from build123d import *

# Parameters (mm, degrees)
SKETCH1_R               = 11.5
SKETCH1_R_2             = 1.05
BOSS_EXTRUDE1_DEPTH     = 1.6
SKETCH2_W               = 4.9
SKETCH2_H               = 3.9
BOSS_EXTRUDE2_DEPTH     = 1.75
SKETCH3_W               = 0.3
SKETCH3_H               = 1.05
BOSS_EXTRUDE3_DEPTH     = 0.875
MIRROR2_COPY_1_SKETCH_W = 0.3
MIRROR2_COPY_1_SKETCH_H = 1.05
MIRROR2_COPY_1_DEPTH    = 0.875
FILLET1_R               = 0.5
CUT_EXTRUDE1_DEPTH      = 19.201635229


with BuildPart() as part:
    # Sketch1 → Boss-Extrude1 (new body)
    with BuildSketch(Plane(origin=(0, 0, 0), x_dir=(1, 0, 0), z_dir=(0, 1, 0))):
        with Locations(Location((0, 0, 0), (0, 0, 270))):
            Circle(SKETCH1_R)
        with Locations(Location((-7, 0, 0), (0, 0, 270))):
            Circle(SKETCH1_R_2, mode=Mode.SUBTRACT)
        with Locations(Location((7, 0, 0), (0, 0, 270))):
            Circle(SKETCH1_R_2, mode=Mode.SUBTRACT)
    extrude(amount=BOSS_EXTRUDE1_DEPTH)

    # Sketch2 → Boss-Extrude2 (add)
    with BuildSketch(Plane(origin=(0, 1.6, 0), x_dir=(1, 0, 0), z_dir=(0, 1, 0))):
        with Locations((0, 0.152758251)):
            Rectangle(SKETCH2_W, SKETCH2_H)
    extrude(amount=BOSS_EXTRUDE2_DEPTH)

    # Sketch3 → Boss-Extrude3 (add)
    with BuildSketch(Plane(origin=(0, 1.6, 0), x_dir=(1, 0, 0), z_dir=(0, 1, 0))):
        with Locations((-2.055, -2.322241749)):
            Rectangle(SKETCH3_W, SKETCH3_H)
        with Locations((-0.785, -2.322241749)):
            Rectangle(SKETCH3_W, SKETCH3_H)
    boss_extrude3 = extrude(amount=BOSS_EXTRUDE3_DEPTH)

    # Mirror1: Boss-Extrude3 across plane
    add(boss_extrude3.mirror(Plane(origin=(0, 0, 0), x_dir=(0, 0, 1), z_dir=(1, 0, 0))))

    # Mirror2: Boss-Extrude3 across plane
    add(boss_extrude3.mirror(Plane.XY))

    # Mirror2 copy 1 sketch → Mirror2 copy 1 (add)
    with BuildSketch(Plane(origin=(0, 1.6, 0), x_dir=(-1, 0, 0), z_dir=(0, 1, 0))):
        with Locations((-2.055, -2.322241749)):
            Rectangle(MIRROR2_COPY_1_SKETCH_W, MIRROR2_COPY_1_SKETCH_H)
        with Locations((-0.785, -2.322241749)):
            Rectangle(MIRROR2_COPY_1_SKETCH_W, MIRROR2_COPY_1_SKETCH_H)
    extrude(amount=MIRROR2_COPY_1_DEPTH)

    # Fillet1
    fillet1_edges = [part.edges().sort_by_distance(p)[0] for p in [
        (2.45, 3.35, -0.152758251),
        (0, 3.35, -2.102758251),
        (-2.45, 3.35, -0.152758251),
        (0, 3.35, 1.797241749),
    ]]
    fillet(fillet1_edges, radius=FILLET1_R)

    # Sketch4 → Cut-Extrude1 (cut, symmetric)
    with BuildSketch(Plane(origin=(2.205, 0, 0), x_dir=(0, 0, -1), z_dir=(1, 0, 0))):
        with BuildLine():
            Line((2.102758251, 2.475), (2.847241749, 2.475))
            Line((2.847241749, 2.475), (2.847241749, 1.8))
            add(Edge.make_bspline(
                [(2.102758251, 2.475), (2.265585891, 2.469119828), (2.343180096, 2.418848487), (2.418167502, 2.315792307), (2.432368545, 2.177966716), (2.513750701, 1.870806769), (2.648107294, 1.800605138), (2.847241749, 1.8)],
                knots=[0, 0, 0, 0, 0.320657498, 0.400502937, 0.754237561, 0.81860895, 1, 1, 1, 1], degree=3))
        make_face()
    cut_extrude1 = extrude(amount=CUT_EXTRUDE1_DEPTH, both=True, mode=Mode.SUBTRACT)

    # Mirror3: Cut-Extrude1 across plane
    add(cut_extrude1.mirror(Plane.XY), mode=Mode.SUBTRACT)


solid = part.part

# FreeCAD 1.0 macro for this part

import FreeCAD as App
import Part
import Sketcher

V = App.Vector
Q = App.Units.Quantity


def edges_at(feature, points):
    """Names of the edges that pass closest to the given points."""
    edges = feature.Shape.Edges
    near = lambda p: min(range(len(edges)), key=lambda i: edges[i].distToShape(Part.Vertex(*p))[0])
    return sorted({f"Edge{near(p) + 1}" for p in points})


def add_polygon(sketch, points):
    """Adds a closed chain of lines whose ends are joined by coincident constraints."""
    first, n = sketch.GeometryCount, len(points)
    for a, b in zip(points, points[1:] + points[:1]):
        sketch.addGeometry(Part.LineSegment(App.Vector(*a, 0), App.Vector(*b, 0)), False)
    for i in range(n):
        sketch.addConstraint(Sketcher.Constraint("Coincident", first + i, 2, first + (i + 1) % n, 1))

doc = App.newDocument("Part")
body = doc.addObject("PartDesign::Body", "Body")

# Sketch on XZ plane
sketch1 = body.newObject("Sketcher::SketchObject", "Sketch")
sketch1.AttachmentSupport = (doc.getObject("XZ_Plane"), [""])
sketch1.MapMode = "FlatFace"
sketch1.addGeometry([
    Part.Circle(V(0, 0, 0), V(0, 0, 1), 11.5),
    Part.Circle(V(-7, 0, 0), V(0, 0, 1), 1.1),
    Part.Circle(V(7, 0, 0), V(0, 0, 1), 1.1),
], False)
sketch1.addConstraint([
    Sketcher.Constraint("Coincident", 0, 3, -1, 1),
    Sketcher.Constraint("Equal", 1, 2),
    Sketcher.Constraint("Symmetric", 1, 3, 2, 3, -1, 1),
    Sketcher.Constraint("PointOnObject", 1, 3, -1),
    Sketcher.Constraint("Diameter", 0, Q("23 mm")),
    Sketcher.Constraint("Diameter", 1, Q("2.1 mm")),
    Sketcher.Constraint("DistanceX", 1, 3, -1, 1, Q("7 mm")),
])
pad1 = body.newObject("PartDesign::Pad", "Pad")
pad1.Profile = sketch1
pad1.Length = 1.6
pad1.Reversed = True

# Sketch on XZ plane
sketch2 = body.newObject("Sketcher::SketchObject", "Sketch001")
sketch2.AttachmentSupport = (doc.getObject("XZ_Plane"), [""])
sketch2.MapMode = "FlatFace"
sketch2.AttachmentOffset = App.Placement(V(0, 0, -1.6), App.Rotation())
add_polygon(sketch2, [(-2.5, -2.1), (-2.5, 1.8), (2.5, 1.8), (2.5, -2.1)])  # lines 0-3
sketch2.addConstraint([
    Sketcher.Constraint("Vertical", 0),
    Sketcher.Constraint("Horizontal", 1),
    Sketcher.Constraint("Vertical", 2),
    Sketcher.Constraint("Horizontal", 3),
    Sketcher.Constraint("DistanceX", 1, 1, 1, 2, Q("4.9 mm")),
    Sketcher.Constraint("DistanceY", 0, 1, 0, 2, Q("3.9 mm")),
    Sketcher.Constraint("DistanceX", 0, 2, -1, 1, Q("2.45 mm")),
    Sketcher.Constraint("DistanceY", -1, 1, 0, 2, Q("1.797242 mm")),
])
pad2 = body.newObject("PartDesign::Pad", "Pad001")
pad2.Profile = sketch2
pad2.Length = 1.75
pad2.Reversed = True

# Sketch on XZ plane
sketch3 = body.newObject("Sketcher::SketchObject", "Sketch002")
sketch3.AttachmentSupport = (doc.getObject("XZ_Plane"), [""])
sketch3.MapMode = "FlatFace"
sketch3.AttachmentOffset = App.Placement(V(0, 0, -1.6), App.Rotation())
add_polygon(sketch3, [(-2.21, 1.8), (-2.21, 2.85), (-1.91, 2.85), (-1.91, 1.8)])  # lines 0-3
add_polygon(sketch3, [(-0.94, 1.8), (-0.94, 2.85), (-0.64, 2.85), (-0.64, 1.8)])  # lines 4-7
sketch3.addConstraint([
    Sketcher.Constraint("Vertical", 0),
    Sketcher.Constraint("Horizontal", 1),
    Sketcher.Constraint("Vertical", 2),
    Sketcher.Constraint("Horizontal", 3),
    Sketcher.Constraint("Vertical", 4),
    Sketcher.Constraint("Horizontal", 5),
    Sketcher.Constraint("Vertical", 6),
    Sketcher.Constraint("Horizontal", 7),
    Sketcher.Constraint("Horizontal", 1, 2, 4, 2),
    Sketcher.Constraint("Horizontal", 3, 2, 6, 2),
    Sketcher.Constraint("Equal", 3, 5),
    Sketcher.Constraint("DistanceX", 1, 1, 1, 2, Q("0.3 mm")),
    Sketcher.Constraint("DistanceY", 0, 1, 0, 2, Q("1.05 mm")),
    Sketcher.Constraint("DistanceX", 1, 2, 4, 2, Q("0.97 mm")),
    Sketcher.Constraint("DistanceX", 0, 2, -1, 1, Q("2.205 mm")),
    Sketcher.Constraint("DistanceY", -1, 1, 0, 2, Q("2.847242 mm")),
])
pad3 = body.newObject("PartDesign::Pad", "Pad002")
pad3.Profile = sketch3
pad3.Length = 0.875
pad3.Reversed = True
doc.recompute()

mirrored = body.newObject("PartDesign::Mirrored", "Mirrored")
mirrored.Originals = [pad3]
mirrored.MirrorPlane = (doc.getObject("YZ_Plane"), [""])
body.Tip = mirrored
doc.recompute()

mirrored2 = body.newObject("PartDesign::Mirrored", "Mirrored001")
mirrored2.Originals = [pad3]
mirrored2.MirrorPlane = (doc.getObject("XY_Plane"), [""])
body.Tip = mirrored2

# Sketch on XZ plane
sketch4 = body.newObject("Sketcher::SketchObject", "Sketch003")
sketch4.AttachmentSupport = (doc.getObject("XZ_Plane"), [""])
sketch4.MapMode = "FlatFace"
sketch4.AttachmentOffset = App.Placement(V(0, 0, -1.6), App.Rotation())
add_polygon(sketch4, [(2.21, -1.8), (2.21, -2.85), (1.91, -2.85), (1.91, -1.8)])  # lines 0-3
add_polygon(sketch4, [(0.94, -1.8), (0.94, -2.85), (0.64, -2.85), (0.64, -1.8)])  # lines 4-7
sketch4.addConstraint([
    Sketcher.Constraint("Vertical", 0),
    Sketcher.Constraint("Horizontal", 1),
    Sketcher.Constraint("Vertical", 2),
    Sketcher.Constraint("Horizontal", 3),
    Sketcher.Constraint("Vertical", 4),
    Sketcher.Constraint("Horizontal", 5),
    Sketcher.Constraint("Vertical", 6),
    Sketcher.Constraint("Horizontal", 7),
    Sketcher.Constraint("Horizontal", 1, 2, 4, 2),
    Sketcher.Constraint("Horizontal", 3, 2, 6, 2),
    Sketcher.Constraint("Equal", 3, 5),
    Sketcher.Constraint("DistanceX", 1, 2, 1, 1, Q("0.3 mm")),
    Sketcher.Constraint("DistanceY", 0, 2, 0, 1, Q("1.05 mm")),
    Sketcher.Constraint("DistanceX", 4, 2, 1, 2, Q("0.97 mm")),
    Sketcher.Constraint("DistanceX", -1, 1, 0, 2, Q("2.205 mm")),
    Sketcher.Constraint("DistanceY", 0, 2, -1, 1, Q("2.847242 mm")),
])
pad4 = body.newObject("PartDesign::Pad", "Pad003")
pad4.Profile = sketch4
pad4.Length = 0.875
pad4.Reversed = True
doc.recompute()

fillet = body.newObject("PartDesign::Fillet", "Fillet")
fillet.Base = (pad4, edges_at(pad4, [
    (2.45, 3.35, -0.153),
    (0, 3.35, -2.103),
    (-2.45, 3.35, -0.153),
    (0, 3.35, 1.797),
]))
fillet.Radius = 0.5

# Sketch on YZ plane
sketch5 = body.newObject("Sketcher::SketchObject", "Sketch004")
sketch5.AttachmentSupport = (doc.getObject("YZ_Plane"), [""])
sketch5.MapMode = "FlatFace"
sketch5.AttachmentOffset = App.Placement(V(0, 0, 2.205), App.Rotation())
sketch5.addGeometry([
    Part.LineSegment(V(2.475, -2.847242, 0), V(2.475, -2.102758, 0)),
    Part.BSplineCurve([V(2.475, -2.102758, 0), V(2.46912, -2.265586, 0), V(2.418848, -2.34318, 0), V(2.315792, -2.418168, 0), V(2.177967, -2.432369, 0), V(1.870807, -2.513751, 0), V(1.800605, -2.648107, 0), V(1.8, -2.847242, 0)], [4, 1, 1, 1, 1, 4], [0, 0.320657498, 0.400502937, 0.754237561, 0.81860895, 1], False, 3, [1, 1, 1, 1, 1, 1, 1, 1], False),
    Part.LineSegment(V(1.8, -2.847242, 0), V(2.475, -2.847242, 0)),
], False)
sketch5.addConstraint([
    Sketcher.Constraint("Block", 1),
    Sketcher.Constraint("Coincident", 0, 2, 1, 1),
    Sketcher.Constraint("Coincident", 1, 2, 2, 1),
    Sketcher.Constraint("Coincident", 2, 2, 0, 1),
    Sketcher.Constraint("Vertical", 0),
    Sketcher.Constraint("Horizontal", 2),
])
pocket1 = body.newObject("PartDesign::Pocket", "Pocket")
pocket1.Profile = sketch5
pocket1.Length = 38.40327
pocket1.Midplane = True
doc.recompute()

mirrored3 = body.newObject("PartDesign::Mirrored", "Mirrored002")
mirrored3.Originals = [pocket1]
mirrored3.MirrorPlane = (doc.getObject("XY_Plane"), [""])
body.Tip = mirrored3

doc.recompute()
